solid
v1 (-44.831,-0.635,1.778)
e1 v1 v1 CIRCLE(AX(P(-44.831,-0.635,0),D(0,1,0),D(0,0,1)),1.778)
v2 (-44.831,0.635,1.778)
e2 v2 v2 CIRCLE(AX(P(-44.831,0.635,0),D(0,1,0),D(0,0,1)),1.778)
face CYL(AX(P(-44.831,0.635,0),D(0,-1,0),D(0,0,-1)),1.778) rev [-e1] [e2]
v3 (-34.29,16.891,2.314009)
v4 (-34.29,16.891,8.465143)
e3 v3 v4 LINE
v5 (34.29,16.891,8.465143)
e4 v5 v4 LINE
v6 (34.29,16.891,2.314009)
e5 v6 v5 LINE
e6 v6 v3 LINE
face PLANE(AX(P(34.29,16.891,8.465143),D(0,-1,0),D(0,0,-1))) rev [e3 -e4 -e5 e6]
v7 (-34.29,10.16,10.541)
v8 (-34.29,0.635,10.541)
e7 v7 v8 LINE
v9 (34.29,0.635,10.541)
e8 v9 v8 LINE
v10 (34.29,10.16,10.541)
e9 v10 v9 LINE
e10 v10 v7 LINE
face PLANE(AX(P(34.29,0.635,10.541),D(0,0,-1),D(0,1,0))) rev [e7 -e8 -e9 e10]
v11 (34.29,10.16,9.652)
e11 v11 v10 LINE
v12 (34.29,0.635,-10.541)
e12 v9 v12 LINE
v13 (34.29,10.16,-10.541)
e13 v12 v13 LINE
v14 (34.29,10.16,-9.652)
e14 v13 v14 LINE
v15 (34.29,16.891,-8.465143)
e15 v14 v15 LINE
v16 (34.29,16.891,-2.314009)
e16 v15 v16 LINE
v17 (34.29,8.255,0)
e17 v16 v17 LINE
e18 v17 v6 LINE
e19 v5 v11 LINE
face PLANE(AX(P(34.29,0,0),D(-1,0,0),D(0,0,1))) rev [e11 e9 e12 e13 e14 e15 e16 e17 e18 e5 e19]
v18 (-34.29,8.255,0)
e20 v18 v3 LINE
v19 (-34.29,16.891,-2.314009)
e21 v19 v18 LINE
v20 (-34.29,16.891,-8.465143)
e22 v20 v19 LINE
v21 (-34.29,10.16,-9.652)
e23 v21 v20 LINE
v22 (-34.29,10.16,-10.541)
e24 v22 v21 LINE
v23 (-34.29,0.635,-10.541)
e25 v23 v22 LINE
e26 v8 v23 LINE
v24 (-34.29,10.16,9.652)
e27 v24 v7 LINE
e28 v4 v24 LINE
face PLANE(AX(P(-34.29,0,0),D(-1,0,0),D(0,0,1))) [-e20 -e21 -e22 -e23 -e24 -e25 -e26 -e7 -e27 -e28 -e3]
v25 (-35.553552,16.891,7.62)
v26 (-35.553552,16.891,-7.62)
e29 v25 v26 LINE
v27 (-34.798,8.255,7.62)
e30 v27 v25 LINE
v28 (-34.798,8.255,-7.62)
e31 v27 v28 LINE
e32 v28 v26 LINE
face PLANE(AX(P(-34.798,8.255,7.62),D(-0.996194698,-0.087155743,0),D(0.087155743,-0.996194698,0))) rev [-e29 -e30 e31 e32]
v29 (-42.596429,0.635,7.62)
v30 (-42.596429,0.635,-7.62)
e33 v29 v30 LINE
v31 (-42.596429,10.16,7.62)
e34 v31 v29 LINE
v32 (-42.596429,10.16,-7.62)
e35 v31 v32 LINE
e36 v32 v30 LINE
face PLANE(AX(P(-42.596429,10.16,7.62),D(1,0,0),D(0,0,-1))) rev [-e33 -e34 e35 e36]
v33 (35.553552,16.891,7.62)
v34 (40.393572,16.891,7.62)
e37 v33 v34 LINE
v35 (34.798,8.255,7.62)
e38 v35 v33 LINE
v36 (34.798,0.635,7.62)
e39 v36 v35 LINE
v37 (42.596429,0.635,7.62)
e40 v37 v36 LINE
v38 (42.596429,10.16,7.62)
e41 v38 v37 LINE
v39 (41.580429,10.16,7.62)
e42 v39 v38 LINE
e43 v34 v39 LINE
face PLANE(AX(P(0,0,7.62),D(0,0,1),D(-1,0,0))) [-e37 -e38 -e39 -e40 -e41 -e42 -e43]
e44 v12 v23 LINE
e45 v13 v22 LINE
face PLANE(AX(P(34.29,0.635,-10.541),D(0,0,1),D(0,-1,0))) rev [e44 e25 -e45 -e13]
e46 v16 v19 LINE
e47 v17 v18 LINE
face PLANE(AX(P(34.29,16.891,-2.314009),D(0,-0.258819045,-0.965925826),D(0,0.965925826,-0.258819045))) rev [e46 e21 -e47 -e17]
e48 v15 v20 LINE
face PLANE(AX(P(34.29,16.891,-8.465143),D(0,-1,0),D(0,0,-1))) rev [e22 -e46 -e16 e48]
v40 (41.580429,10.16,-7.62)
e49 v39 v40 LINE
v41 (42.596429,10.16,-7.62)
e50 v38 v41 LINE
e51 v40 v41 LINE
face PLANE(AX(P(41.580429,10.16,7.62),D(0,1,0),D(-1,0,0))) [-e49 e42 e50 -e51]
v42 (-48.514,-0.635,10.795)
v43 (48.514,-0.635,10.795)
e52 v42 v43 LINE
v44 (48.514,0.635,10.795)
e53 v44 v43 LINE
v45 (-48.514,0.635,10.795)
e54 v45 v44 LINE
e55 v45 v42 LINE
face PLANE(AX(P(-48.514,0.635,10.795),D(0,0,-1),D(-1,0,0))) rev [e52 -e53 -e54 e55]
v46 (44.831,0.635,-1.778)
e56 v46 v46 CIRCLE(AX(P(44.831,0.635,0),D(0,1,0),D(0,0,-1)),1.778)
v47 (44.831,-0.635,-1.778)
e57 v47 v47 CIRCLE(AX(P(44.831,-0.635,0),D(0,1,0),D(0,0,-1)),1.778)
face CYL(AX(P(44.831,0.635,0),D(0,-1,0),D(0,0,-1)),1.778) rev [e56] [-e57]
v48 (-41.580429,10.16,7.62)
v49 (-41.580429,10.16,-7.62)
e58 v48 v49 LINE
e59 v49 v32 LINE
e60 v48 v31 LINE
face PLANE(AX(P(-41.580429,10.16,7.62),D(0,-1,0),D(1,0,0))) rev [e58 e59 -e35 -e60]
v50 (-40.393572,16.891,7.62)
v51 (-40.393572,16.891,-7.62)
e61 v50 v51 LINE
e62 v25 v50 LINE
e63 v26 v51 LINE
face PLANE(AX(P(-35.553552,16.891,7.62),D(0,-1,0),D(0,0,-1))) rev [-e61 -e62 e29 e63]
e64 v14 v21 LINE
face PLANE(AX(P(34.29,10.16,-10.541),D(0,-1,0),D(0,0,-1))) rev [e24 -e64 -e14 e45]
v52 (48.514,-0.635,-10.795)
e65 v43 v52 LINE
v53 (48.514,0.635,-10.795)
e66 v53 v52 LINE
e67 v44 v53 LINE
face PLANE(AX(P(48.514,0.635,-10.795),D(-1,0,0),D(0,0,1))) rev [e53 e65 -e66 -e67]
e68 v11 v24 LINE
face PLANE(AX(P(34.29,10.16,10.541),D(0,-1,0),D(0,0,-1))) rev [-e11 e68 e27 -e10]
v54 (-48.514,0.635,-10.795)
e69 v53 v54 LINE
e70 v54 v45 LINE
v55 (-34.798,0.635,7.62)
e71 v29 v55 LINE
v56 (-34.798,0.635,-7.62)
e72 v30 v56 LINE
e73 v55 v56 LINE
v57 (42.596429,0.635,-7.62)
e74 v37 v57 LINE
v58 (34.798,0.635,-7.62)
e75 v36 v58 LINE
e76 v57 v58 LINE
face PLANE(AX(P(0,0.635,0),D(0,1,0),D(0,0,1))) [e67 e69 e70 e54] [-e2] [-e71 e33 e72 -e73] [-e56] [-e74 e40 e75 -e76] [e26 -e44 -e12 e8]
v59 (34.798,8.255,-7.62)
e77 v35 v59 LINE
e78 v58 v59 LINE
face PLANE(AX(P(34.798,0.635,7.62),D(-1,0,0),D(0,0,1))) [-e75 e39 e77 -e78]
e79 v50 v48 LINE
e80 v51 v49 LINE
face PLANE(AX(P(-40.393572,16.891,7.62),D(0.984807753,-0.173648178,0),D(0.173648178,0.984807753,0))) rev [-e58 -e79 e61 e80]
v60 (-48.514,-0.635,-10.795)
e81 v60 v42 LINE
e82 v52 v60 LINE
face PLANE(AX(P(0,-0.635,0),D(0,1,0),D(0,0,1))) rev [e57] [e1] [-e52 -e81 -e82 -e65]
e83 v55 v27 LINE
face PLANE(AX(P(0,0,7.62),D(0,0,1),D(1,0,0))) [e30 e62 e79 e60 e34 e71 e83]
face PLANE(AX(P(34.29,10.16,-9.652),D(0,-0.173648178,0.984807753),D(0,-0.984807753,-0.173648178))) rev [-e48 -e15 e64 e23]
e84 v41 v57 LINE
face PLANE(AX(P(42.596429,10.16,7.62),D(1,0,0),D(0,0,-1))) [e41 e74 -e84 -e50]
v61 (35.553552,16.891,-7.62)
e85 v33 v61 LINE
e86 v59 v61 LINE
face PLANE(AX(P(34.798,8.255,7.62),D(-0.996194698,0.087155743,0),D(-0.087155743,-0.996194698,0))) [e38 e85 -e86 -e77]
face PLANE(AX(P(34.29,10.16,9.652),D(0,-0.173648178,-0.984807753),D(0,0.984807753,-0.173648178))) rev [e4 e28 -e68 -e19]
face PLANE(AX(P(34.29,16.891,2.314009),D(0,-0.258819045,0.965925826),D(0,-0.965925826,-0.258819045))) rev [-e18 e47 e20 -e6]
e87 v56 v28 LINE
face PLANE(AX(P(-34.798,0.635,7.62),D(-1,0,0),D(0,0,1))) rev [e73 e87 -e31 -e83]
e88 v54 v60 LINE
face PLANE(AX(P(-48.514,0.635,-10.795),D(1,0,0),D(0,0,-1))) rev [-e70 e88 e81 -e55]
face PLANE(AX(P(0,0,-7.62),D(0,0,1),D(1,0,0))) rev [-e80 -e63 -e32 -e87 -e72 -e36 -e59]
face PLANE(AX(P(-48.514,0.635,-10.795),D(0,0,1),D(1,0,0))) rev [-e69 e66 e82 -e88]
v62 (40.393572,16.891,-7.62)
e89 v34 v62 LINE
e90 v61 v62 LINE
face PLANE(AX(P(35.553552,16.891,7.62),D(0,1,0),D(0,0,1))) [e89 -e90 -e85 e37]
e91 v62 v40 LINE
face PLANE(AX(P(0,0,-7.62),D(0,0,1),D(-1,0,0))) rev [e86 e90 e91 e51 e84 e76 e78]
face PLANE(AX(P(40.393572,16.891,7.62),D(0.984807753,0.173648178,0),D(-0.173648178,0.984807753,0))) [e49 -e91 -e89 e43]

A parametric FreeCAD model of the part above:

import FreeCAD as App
import Part
import Sketcher

V = App.Vector
Q = App.Units.Quantity


def add_polygon(sketch, points):
    """Adds a closed chain of lines whose ends are joined by coincident constraints."""
    first, n = sketch.GeometryCount, len(points)
    for a, b in zip(points, points[1:] + points[:1]):
        sketch.addGeometry(Part.LineSegment(App.Vector(*a, 0), App.Vector(*b, 0)), False)
    for i in range(n):
        sketch.addConstraint(Sketcher.Constraint("Coincident", first + i, 2, first + (i + 1) % n, 1))

doc = App.newDocument("Part")
body = doc.addObject("PartDesign::Body", "Body")

# Sketch on XZ plane
sketch1 = body.newObject("Sketcher::SketchObject", "Sketch")
sketch1.AttachmentSupport = (doc.getObject("XZ_Plane"), [""])
sketch1.MapMode = "FlatFace"
add_polygon(sketch1, [(-48.5, -10.8), (-48.5, 10.8), (48.5, 10.8), (48.5, -10.8)])  # lines 0-3
sketch1.addGeometry(Part.Circle(V(-44.8, 0, 0), V(0, 0, 1), 1.8), False)  # 4
sketch1.addGeometry(Part.Circle(V(44.8, 0, 0), V(0, 0, 1), 1.8), False)  # 5
sketch1.addConstraint([
    Sketcher.Constraint("Vertical", 0),
    Sketcher.Constraint("Horizontal", 1),
    Sketcher.Constraint("Vertical", 2),
    Sketcher.Constraint("Horizontal", 3),
    Sketcher.Constraint("Equal", 4, 5),
    Sketcher.Constraint("Symmetric", 4, 3, 5, 3, -1, 1),
    Sketcher.Constraint("Symmetric", 0, 2, 2, 2, -1, 1),
    Sketcher.Constraint("PointOnObject", 4, 3, -1),
    Sketcher.Constraint("Diameter", 4, Q("0.14 in")),
    Sketcher.Constraint("DistanceX", 1, 1, 1, 2, Q("3.82 in")),
    Sketcher.Constraint("DistanceY", 0, 1, 0, 2, Q("0.85 in")),
    Sketcher.Constraint("DistanceX", 4, 3, 5, 3, Q("3.53 in")),
])
pad1 = body.newObject("PartDesign::Pad", "Pad")
pad1.Profile = sketch1
pad1.Length = Q("0.05 in")
pad1.Midplane = True

# Sketch on YZ plane
sketch2 = body.newObject("Sketcher::SketchObject", "Sketch001")
sketch2.AttachmentSupport = (doc.getObject("YZ_Plane"), [""])
sketch2.MapMode = "FlatFace"
add_polygon(sketch2, [(10.2, 10.5), (0.6, 10.5), (0.6, -10.5), (10.2, -10.5), (10.2, -9.7), (16.9, -8.5), (16.9, -2.3), (8.3, 0), (16.9, 2.3), (16.9, 8.5), (10.2, 9.7)])  # lines 0-10
sketch2.addConstraint([
    Sketcher.Constraint("Horizontal", 0),
    Sketcher.Constraint("Vertical", 1),
    Sketcher.Constraint("Horizontal", 2),
    Sketcher.Constraint("Vertical", 3),
    Sketcher.Constraint("Vertical", 5),
    Sketcher.Constraint("Vertical", 8),
    Sketcher.Constraint("Vertical", 10),
    Sketcher.Constraint("Symmetric", 5, 2, 7, 2, -1),
    Sketcher.Constraint("Symmetric", 3, 2, 9, 2, -1),
    Sketcher.Constraint("PointOnObject", 6, 2, -1),
    Sketcher.Constraint("Equal", 5, 8),
    Sketcher.Constraint("Equal", 3, 10),
    Sketcher.Constraint("Angle", 4, Q("10 deg")),
    Sketcher.Constraint("Angle", 6, Q("165 deg")),
    Sketcher.Constraint("DistanceY", 1, 2, 1, 1, Q("0.83 in")),
    Sketcher.Constraint("DistanceX", -1, 1, 2, 2, Q("0.4 in")),
    Sketcher.Constraint("DistanceX", 0, 2, 6, 2, Q("0.3 in")),
    Sketcher.Constraint("DistanceX", 0, 2, 0, 1, Q("0.375 in")),
    Sketcher.Constraint("DistanceY", 3, 1, 3, 2, Q("0.035 in")),
    Sketcher.Constraint("DistanceX", 1, 2, 4, 2, Q("0.64 in")),
])
pad2 = body.newObject("PartDesign::Pad", "Pad001")
pad2.Profile = sketch2
pad2.Length = Q("2.7 in")
pad2.Midplane = True

# Sketch on XY plane
sketch3 = body.newObject("Sketcher::SketchObject", "Sketch002")
sketch3.AttachmentSupport = (doc.getObject("XY_Plane"), [""])
sketch3.MapMode = "FlatFace"
add_polygon(sketch3, [(-34.8, 0.6), (-34.8, 8.3), (-35.6, 16.9), (-40.4, 16.9), (-41.6, 10.2), (-42.6, 10.2), (-42.6, 0.6)])  # lines 0-6
sketch3.addConstraint([
    Sketcher.Constraint("Vertical", 0),
    Sketcher.Constraint("Horizontal", 2),
    Sketcher.Constraint("Horizontal", 4),
    Sketcher.Constraint("Vertical", 5),
    Sketcher.Constraint("Horizontal", 6),
    Sketcher.Constraint("DistanceY", 0, 1, 0, 2, Q("0.3 in")),
    Sketcher.Constraint("Angle", 1, Q("95 deg")),
    Sketcher.Constraint("Angle", 3, Q("-100 deg")),
    Sketcher.Constraint("DistanceX", 4, 2, 4, 1, Q("0.04 in")),
    Sketcher.Constraint("DistanceY", -1, 1, 3, 2, Q("0.4 in")),
    Sketcher.Constraint("DistanceY", 5, 2, 5, 1, Q("0.375 in")),
    Sketcher.Constraint("DistanceX", 0, 2, -1, 1, Q("1.37 in")),
    Sketcher.Constraint("DistanceY", 0, 2, 1, 2, Q("0.34 in")),
    Sketcher.Constraint("DistanceX", 2, 2, 2, 1, 4.84002),
])
pad3 = body.newObject("PartDesign::Pad", "Pad002")
pad3.Profile = sketch3
pad3.Length = Q("0.6 in")
pad3.Midplane = True
doc.recompute()

mirrored = body.newObject("PartDesign::Mirrored", "Mirrored")
mirrored.Originals = [pad3]
mirrored.MirrorPlane = (doc.getObject("YZ_Plane"), [""])
body.Tip = mirrored

doc.recompute()
